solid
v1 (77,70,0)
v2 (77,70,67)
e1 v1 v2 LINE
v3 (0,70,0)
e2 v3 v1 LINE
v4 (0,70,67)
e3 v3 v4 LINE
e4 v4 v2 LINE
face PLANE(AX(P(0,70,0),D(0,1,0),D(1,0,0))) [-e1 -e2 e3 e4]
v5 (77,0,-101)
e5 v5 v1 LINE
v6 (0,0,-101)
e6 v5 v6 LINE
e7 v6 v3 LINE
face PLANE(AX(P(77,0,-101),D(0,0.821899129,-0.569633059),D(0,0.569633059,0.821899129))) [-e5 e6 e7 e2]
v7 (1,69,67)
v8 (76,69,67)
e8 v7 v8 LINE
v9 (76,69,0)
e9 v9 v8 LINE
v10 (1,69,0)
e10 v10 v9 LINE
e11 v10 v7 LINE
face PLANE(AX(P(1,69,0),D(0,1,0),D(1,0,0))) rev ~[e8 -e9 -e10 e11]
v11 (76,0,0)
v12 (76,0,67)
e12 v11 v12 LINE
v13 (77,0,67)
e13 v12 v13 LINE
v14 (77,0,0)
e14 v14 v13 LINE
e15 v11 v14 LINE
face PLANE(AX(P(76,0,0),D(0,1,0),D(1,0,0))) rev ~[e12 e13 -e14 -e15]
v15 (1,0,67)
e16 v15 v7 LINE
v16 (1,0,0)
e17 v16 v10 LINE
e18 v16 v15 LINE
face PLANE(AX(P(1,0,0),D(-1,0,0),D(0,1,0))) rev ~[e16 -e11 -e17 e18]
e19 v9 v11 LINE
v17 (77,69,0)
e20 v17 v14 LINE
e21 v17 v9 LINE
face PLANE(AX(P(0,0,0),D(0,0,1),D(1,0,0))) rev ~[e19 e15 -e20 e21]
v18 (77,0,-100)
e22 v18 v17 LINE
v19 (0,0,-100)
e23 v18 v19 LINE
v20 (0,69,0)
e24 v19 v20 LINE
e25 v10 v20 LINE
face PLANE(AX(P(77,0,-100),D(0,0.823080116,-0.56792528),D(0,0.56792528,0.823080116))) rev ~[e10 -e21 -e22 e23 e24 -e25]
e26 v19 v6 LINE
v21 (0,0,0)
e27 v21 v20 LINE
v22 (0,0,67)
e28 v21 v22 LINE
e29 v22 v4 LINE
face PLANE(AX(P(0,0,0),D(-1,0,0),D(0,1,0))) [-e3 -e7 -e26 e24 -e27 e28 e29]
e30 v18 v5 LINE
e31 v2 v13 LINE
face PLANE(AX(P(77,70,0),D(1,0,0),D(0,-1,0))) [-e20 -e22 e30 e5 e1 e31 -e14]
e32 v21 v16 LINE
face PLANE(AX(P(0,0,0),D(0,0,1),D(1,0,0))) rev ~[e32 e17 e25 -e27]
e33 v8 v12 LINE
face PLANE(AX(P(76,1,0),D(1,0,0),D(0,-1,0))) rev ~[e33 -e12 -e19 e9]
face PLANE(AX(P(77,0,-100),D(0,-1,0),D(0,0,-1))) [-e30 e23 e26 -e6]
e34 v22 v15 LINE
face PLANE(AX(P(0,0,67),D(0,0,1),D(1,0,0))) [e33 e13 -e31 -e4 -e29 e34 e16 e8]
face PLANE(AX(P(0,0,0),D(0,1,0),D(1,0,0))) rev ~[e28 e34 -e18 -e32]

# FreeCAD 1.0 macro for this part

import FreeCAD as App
import Part
import Sketcher
from FreeCAD import Vector
Q = App.Units.Quantity


def add_polygon(sketch, points):
    """Adds a closed chain of lines whose ends are joined by coincident constraints."""
    first, n = sketch.GeometryCount, len(points)
    for a, b in zip(points, points[1:] + points[:1]):
        sketch.addGeometry(Part.LineSegment(App.Vector(*a, 0), App.Vector(*b, 0)), False)
    for i in range(n):
        sketch.addConstraint(Sketcher.Constraint("Coincident", first + i, 2, first + (i + 1) % n, 1))

doc = App.newDocument("Part")
body = doc.addObject("PartDesign::Body", "Body")

sketch1 = doc.addObject("Sketcher::SketchObject", "Sketch")
body.addObject(sketch1)
sketch1.AttachmentSupport = (doc.XY_Plane, [""])
sketch1.MapMode = "FlatFace"
add_polygon(sketch1, [(0, 70), (0, 0), (1, 0), (1, 69), (76, 69), (76, 0), (77, 0), (77, 70)])
sketch1.addConstraint(Sketcher.Constraint("Vertical", 0))
sketch1.addConstraint(Sketcher.Constraint("Horizontal", 1))
sketch1.addConstraint(Sketcher.Constraint("Vertical", 2))
sketch1.addConstraint(Sketcher.Constraint("Horizontal", 3))
sketch1.addConstraint(Sketcher.Constraint("Vertical", 4))
sketch1.addConstraint(Sketcher.Constraint("Horizontal", 5))
sketch1.addConstraint(Sketcher.Constraint("Vertical", 6))
sketch1.addConstraint(Sketcher.Constraint("Horizontal", 7))
sketch1.addConstraint(Sketcher.Constraint("Coincident", 0, 2, -1, 1))
sketch1.addConstraint(Sketcher.Constraint("PointOnObject", 4, 2, -1))
sketch1.addConstraint(Sketcher.Constraint("Equal", 1, 5))
sketch1.addConstraint(Sketcher.Constraint("DistanceX", 1, 1, 1, 2, Q("1 mm")))
sketch1.addConstraint(Sketcher.Constraint("DistanceX", 3, 1, 3, 2, Q("75 mm")))
sketch1.addConstraint(Sketcher.Constraint("DistanceY", 0, 2, 0, 1, Q("70 mm")))
sketch1.addConstraint(Sketcher.Constraint("DistanceY", 2, 1, 2, 2, Q("69 mm")))
pad1 = doc.addObject("PartDesign::Pad", "Pad")
body.addObject(pad1)
pad1.Profile = sketch1
pad1.Length = 67

sketch2 = doc.addObject("Sketcher::SketchObject", "Sketch001")
body.addObject(sketch2)
sketch2.AttachmentSupport = (doc.YZ_Plane, [""])
sketch2.MapMode = "FlatFace"
sketch2.AttachmentOffset = App.Placement(Vector(0, 0, 77), App.Rotation())
add_polygon(sketch2, [(0, -101), (70, 0), (69, 0), (0, -100)])
sketch2.addConstraint(Sketcher.Constraint("Horizontal", 1))
sketch2.addConstraint(Sketcher.Constraint("Vertical", 3))
sketch2.addConstraint(Sketcher.Constraint("PointOnObject", 0, 2, -1))
sketch2.addConstraint(Sketcher.Constraint("PointOnObject", 2, 2, -2))
sketch2.addConstraint(Sketcher.Constraint("Equal", 1, 3))
sketch2.addConstraint(Sketcher.Constraint("DistanceX", 1, 2, 1, 1, Q("1 mm")))
sketch2.addConstraint(Sketcher.Constraint("DistanceX", -1, 1, 0, 2, Q("70 mm")))
sketch2.addConstraint(Sketcher.Constraint("DistanceY", 2, 2, -1, 1, Q("100 mm")))
pad2 = doc.addObject("PartDesign::Pad", "Pad001")
body.addObject(pad2)
pad2.Profile = sketch2
pad2.Length = 77
pad2.Reversed = True

doc.recompute()
